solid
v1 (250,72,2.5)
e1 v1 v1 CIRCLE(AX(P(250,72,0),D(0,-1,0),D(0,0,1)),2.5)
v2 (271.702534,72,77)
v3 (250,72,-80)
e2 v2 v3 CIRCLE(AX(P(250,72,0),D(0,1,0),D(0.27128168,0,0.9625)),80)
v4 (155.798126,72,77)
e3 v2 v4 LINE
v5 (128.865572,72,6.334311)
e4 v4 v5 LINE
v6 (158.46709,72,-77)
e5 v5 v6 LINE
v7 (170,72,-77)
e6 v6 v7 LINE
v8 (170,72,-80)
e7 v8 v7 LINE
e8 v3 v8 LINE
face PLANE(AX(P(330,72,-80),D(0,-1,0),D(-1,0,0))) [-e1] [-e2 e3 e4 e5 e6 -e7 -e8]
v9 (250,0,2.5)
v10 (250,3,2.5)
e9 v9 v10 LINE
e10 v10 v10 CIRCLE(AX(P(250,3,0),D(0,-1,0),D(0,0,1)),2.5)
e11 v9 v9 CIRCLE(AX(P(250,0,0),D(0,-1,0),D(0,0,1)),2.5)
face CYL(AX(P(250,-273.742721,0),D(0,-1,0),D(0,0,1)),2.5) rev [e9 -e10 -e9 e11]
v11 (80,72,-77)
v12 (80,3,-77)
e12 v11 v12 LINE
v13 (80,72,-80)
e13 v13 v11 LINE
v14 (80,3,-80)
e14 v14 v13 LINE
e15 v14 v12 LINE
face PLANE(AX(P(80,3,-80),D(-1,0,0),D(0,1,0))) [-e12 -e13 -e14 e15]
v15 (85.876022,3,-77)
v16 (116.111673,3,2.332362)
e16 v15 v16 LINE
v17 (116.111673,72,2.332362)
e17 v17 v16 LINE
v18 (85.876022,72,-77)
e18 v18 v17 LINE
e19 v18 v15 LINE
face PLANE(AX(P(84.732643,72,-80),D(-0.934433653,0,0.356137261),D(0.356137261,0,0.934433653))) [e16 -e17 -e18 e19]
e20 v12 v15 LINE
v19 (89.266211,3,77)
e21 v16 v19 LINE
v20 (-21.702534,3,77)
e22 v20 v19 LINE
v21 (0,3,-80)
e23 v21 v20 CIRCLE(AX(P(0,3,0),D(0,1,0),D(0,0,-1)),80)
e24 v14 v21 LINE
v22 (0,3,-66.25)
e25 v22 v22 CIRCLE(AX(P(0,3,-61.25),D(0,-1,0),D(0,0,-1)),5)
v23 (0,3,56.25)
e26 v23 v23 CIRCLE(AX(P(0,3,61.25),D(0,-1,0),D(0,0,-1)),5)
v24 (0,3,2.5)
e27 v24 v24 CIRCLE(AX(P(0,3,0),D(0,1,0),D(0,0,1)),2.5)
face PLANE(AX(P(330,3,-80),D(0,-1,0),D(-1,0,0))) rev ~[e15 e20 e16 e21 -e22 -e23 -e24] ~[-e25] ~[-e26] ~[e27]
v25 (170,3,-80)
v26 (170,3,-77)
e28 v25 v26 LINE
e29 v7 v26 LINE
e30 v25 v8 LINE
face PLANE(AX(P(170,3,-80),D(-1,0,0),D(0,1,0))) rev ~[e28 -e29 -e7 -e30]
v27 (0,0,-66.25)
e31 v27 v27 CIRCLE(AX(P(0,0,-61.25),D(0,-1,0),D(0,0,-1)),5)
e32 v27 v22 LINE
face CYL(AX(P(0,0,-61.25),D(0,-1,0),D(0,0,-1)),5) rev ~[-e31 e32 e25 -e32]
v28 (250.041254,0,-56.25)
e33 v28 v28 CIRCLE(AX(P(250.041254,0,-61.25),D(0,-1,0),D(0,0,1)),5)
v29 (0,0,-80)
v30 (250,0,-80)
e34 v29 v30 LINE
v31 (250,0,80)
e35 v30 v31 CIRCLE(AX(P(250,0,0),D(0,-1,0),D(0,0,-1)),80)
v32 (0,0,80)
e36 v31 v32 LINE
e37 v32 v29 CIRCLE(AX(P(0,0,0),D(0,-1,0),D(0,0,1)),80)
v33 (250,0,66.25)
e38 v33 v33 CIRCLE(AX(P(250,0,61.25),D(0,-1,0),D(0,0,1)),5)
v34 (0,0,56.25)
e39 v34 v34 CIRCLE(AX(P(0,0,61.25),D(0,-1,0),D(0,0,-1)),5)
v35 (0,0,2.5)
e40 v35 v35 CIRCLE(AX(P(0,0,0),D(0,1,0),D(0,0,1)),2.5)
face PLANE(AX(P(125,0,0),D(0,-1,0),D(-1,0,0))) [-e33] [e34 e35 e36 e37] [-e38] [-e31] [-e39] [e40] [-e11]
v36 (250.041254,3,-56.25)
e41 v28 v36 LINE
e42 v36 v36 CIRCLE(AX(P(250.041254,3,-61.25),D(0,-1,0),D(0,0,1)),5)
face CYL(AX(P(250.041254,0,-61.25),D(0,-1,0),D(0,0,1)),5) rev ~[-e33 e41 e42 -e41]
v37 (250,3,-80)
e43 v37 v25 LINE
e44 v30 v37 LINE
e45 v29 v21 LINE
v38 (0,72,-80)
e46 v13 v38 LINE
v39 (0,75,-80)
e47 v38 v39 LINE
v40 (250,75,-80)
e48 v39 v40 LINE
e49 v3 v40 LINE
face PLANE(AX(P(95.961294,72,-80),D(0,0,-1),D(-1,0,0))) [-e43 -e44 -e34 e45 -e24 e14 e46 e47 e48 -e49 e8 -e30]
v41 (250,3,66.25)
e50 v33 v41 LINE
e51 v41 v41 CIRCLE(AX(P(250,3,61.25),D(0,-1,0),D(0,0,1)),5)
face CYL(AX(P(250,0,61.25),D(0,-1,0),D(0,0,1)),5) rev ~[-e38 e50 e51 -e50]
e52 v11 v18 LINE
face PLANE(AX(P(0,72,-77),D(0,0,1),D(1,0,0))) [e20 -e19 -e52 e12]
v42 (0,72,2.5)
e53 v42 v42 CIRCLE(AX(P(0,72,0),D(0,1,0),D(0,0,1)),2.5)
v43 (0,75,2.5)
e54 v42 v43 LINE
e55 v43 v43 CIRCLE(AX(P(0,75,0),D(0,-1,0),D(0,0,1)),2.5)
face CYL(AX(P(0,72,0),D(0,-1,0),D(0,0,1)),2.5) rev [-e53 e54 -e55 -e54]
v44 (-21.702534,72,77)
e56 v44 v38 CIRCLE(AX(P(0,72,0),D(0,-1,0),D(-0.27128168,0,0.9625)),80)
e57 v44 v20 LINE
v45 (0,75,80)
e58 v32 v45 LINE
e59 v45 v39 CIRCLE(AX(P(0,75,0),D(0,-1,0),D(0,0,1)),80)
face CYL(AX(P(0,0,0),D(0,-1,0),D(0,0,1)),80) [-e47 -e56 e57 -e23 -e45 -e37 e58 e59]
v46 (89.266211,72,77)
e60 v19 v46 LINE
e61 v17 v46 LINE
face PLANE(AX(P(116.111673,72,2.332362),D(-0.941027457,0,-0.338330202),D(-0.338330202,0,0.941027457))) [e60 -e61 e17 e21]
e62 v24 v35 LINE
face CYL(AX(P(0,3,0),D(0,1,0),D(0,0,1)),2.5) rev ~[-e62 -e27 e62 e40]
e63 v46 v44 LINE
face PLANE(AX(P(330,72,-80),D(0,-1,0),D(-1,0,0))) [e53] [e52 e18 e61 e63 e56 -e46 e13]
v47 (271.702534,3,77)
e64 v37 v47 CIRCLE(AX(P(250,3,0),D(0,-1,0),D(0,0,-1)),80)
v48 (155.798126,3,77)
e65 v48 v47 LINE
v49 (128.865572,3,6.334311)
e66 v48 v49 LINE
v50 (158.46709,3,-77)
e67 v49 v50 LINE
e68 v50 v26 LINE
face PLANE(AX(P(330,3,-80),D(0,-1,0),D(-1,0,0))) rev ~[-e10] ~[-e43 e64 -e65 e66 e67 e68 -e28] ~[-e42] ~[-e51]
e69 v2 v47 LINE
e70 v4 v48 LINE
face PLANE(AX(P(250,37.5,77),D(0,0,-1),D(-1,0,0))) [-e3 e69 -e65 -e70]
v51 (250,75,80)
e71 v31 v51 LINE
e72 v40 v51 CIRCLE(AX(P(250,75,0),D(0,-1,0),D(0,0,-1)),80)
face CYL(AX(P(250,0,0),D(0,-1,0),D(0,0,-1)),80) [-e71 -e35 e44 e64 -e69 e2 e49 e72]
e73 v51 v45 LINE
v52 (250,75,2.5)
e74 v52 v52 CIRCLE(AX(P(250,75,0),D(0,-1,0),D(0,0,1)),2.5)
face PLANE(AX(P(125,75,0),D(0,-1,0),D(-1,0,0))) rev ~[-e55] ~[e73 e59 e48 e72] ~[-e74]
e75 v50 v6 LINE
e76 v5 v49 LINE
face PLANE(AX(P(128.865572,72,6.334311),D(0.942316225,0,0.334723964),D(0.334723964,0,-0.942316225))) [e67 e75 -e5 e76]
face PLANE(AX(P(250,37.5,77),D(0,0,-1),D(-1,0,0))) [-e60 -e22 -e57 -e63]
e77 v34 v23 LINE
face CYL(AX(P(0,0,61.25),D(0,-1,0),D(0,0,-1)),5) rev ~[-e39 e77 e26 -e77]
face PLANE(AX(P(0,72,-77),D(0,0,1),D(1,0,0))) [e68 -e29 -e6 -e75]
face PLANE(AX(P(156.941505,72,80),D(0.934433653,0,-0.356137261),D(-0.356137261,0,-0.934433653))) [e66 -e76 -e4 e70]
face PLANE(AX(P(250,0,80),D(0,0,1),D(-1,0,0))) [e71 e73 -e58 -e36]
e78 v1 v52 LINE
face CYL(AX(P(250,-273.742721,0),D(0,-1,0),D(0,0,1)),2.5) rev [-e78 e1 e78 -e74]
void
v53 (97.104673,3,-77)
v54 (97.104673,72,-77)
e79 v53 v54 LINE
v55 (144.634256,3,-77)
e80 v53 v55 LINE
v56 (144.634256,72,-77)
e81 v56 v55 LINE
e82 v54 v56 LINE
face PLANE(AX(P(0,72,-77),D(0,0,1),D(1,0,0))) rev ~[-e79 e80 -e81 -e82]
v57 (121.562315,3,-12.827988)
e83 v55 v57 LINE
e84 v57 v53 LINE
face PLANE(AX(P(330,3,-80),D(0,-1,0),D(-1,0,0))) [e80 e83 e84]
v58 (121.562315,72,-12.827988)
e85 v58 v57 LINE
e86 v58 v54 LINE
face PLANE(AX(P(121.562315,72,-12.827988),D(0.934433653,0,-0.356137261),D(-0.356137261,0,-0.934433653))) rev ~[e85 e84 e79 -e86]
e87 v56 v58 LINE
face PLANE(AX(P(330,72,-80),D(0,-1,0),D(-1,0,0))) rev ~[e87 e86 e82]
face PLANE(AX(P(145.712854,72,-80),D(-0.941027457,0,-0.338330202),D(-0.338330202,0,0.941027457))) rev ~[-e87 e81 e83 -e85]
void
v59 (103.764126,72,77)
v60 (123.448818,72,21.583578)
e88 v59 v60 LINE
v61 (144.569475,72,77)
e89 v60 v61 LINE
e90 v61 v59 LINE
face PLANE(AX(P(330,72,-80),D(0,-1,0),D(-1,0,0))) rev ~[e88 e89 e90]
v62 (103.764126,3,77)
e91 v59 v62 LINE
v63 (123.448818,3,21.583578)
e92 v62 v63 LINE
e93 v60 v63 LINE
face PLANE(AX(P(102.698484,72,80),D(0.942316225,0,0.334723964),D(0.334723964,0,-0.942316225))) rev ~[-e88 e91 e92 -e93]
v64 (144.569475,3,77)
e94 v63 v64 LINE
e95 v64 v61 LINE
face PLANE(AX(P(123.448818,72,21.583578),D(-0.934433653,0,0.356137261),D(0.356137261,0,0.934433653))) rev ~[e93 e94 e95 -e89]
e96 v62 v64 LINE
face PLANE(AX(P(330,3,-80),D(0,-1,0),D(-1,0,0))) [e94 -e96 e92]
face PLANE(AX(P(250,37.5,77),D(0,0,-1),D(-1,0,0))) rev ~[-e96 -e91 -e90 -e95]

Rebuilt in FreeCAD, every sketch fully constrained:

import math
import FreeCAD as App
import Part
import Sketcher

V = App.Vector

doc = App.newDocument("Part")
body = doc.addObject("PartDesign::Body", "Body")

# Sketch on XZ plane
sketch1 = doc.addObject("Sketcher::SketchObject", "Sketch")
body.addObject(sketch1)
sketch1.AttachmentSupport = (doc.XZ_Plane, [""])
sketch1.MapMode = "FlatFace"
sketch1.addGeometry([
    Part.LineSegment(V(250, -80, 0), V(0, -80, 0)),
    Part.ArcOfCircle(Part.Circle(V(0, 0, 0), V(0, 0, 1), 80), math.radians(90), math.radians(270)),
    Part.LineSegment(V(0, 80, 0), V(250, 80, 0)),
    Part.ArcOfCircle(Part.Circle(V(250, 0, 0), V(0, 0, 1), 80), math.radians(-90), math.radians(90)),
], False)
sketch1.addConstraint([
    Sketcher.Constraint("Tangent", 0, 2, 1, 2),
    Sketcher.Constraint("Tangent", 1, 1, 2, 1),
    Sketcher.Constraint("Tangent", 2, 2, 3, 2),
    Sketcher.Constraint("Tangent", 3, 1, 0, 1),
    Sketcher.Constraint("Horizontal", 0),
    Sketcher.Constraint("Horizontal", 2),
    Sketcher.Constraint("Coincident", 1, 3, -1, 1),
    Sketcher.Constraint("Radius", 1, 80.0),
    Sketcher.Constraint("DistanceX", 0, 2, 0, 1, 250.0),
])
pad1 = doc.addObject("PartDesign::Pad", "Pad")
body.addObject(pad1)
pad1.Profile = sketch1
pad1.Length = 75
pad1.Reversed = True

# Sketch on XZ plane
sketch2 = doc.addObject("Sketcher::SketchObject", "Sketch001")
body.addObject(sketch2)
sketch2.AttachmentSupport = (doc.XZ_Plane, [""])
sketch2.MapMode = "FlatFace"
sketch2.AttachmentOffset = App.Placement(V(0, 0, -72), App.Rotation())
sketch2.addGeometry([
    Part.LineSegment(V(250, -77, 0), V(0, -77, 0)),
    Part.ArcOfCircle(Part.Circle(V(0, 0, 0), V(0, 0, 1), 77), math.radians(90), math.radians(270)),
    Part.LineSegment(V(0, 77, 0), V(250, 77, 0)),
    Part.ArcOfCircle(Part.Circle(V(250, 0, 0), V(0, 0, 1), 77), math.radians(-90), math.radians(90)),
], False)
sketch2.addConstraint([
    Sketcher.Constraint("Tangent", 0, 2, 1, 2),
    Sketcher.Constraint("Tangent", 1, 1, 2, 1),
    Sketcher.Constraint("Tangent", 2, 2, 3, 2),
    Sketcher.Constraint("Tangent", 3, 1, 0, 1),
    Sketcher.Constraint("Horizontal", 0),
    Sketcher.Constraint("Horizontal", 2),
    Sketcher.Constraint("Coincident", 1, 3, -1, 1),
    Sketcher.Constraint("Radius", 1, 77.0),
    Sketcher.Constraint("DistanceX", 0, 2, 0, 1, 250.0),
])
pocket1 = doc.addObject("PartDesign::Pocket", "Pocket")
body.addObject(pocket1)
pocket1.Profile = sketch2
pocket1.Length = 69
pocket1.Reversed = True

# Sketch on XY plane
sketch3 = doc.addObject("Sketcher::SketchObject", "Sketch002")
body.addObject(sketch3)
sketch3.AttachmentSupport = (doc.XY_Plane, [""])
sketch3.MapMode = "FlatFace"
sketch3.AttachmentOffset = App.Placement(V(0, 0, -80), App.Rotation())
sketch3.addGeometry([
    Part.LineSegment(V(80, 72, 0), V(80, 3, 0)),  # 0
    Part.LineSegment(V(80, 3, 0), V(-80, 3, 0)),  # 1
    Part.LineSegment(V(-80, 3, 0), V(-80, 72, 0)),  # 2
    Part.LineSegment(V(-80, 72, 0), V(80, 72, 0)),  # 3
    Part.LineSegment(V(330, 72, 0), V(330, 3, 0)),  # 4
    Part.LineSegment(V(330, 3, 0), V(170, 3, 0)),  # 5
    Part.LineSegment(V(170, 3, 0), V(170, 72, 0)),  # 6
    Part.LineSegment(V(170, 72, 0), V(330, 72, 0)),  # 7
], False)
sketch3.addConstraint([
    Sketcher.Constraint("Coincident", 0, 2, 1, 1),
    Sketcher.Constraint("Coincident", 1, 2, 2, 1),
    Sketcher.Constraint("Coincident", 2, 2, 3, 1),
    Sketcher.Constraint("Coincident", 3, 2, 0, 1),
    Sketcher.Constraint("Coincident", 4, 2, 5, 1),
    Sketcher.Constraint("Coincident", 5, 2, 6, 1),
    Sketcher.Constraint("Coincident", 6, 2, 7, 1),
    Sketcher.Constraint("Coincident", 7, 2, 4, 1),
    Sketcher.Constraint("Vertical", 0),
    Sketcher.Constraint("Horizontal", 1),
    Sketcher.Constraint("Vertical", 2),
    Sketcher.Constraint("Horizontal", 3),
    Sketcher.Constraint("Vertical", 4),
    Sketcher.Constraint("Horizontal", 5),
    Sketcher.Constraint("Vertical", 6),
    Sketcher.Constraint("Horizontal", 7),
    Sketcher.Constraint("Horizontal", 1, 2, 4, 2),
    Sketcher.Constraint("Horizontal", 3, 2, 6, 2),
    Sketcher.Constraint("Equal", 3, 5),
    Sketcher.Constraint("DistanceX", 1, 2, 1, 1, 160.0),
    Sketcher.Constraint("DistanceY", 0, 2, 0, 1, 69.0),
    Sketcher.Constraint("DistanceX", -1, 1, 0, 2, 80.0),
    Sketcher.Constraint("DistanceY", -1, 1, 0, 2, 3.0),
    Sketcher.Constraint("DistanceX", -1, 1, 4, 2, 330.0),
])
pocket2 = doc.addObject("PartDesign::Pocket", "Pocket001")
body.addObject(pocket2)
pocket2.Profile = sketch3
pocket2.Length = 157
pocket2.Reversed = True

# Sketch on XZ plane
sketch4 = doc.addObject("Sketcher::SketchObject", "Sketch003")
body.addObject(sketch4)
sketch4.AttachmentSupport = (doc.XZ_Plane, [""])
sketch4.MapMode = "FlatFace"
sketch4.AttachmentOffset = App.Placement(V(0, 0, -3), App.Rotation())
sketch4.addGeometry(Part.Circle(V(0, 0, 0), V(0, 0, 1), 2.5), False)
sketch4.addConstraint([
    Sketcher.Constraint("Coincident", 0, 3, -1, 1),
    Sketcher.Constraint("Diameter", 0, 5.0),
])
pocket3 = doc.addObject("PartDesign::Pocket", "Pocket002")
body.addObject(pocket3)
pocket3.Profile = sketch4
pocket3.Type = "ThroughAll"
pocket3.Reversed = True

# Sketch on XZ plane
sketch5 = doc.addObject("Sketcher::SketchObject", "Sketch004")
body.addObject(sketch5)
sketch5.AttachmentSupport = (doc.XZ_Plane, [""])
sketch5.MapMode = "FlatFace"
sketch5.AttachmentOffset = App.Placement(V(0, 0, -72), App.Rotation())
sketch5.addGeometry(Part.Circle(V(0, 0, 0), V(0, 0, 1), 2.5), False)
sketch5.addConstraint([
    Sketcher.Constraint("Coincident", 0, 3, -1, 1),
    Sketcher.Constraint("Diameter", 0, 5.0),
])
pocket4 = doc.addObject("PartDesign::Pocket", "Pocket003")
body.addObject(pocket4)
pocket4.Profile = sketch5
pocket4.Type = "UpToFirst"

# Sketch on XZ plane
sketch6 = doc.addObject("Sketcher::SketchObject", "Sketch005")
body.addObject(sketch6)
sketch6.AttachmentSupport = (doc.XZ_Plane, [""])
sketch6.MapMode = "FlatFace"
sketch6.addGeometry(Part.Circle(V(0, 61, 0), V(0, 0, 1), 5), False)
sketch6.addConstraint([
    Sketcher.Constraint("PointOnObject", 0, 3, -2),
    Sketcher.Constraint("Diameter", 0, 10.0),
    Sketcher.Constraint("DistanceY", -1, 1, 0, 3, 61.25),
])
pocket5 = doc.addObject("PartDesign::Pocket", "Pocket004")
body.addObject(pocket5)
pocket5.Profile = sketch6
pocket5.Type = "UpToFirst"

# Sketch on XZ plane
sketch7 = doc.addObject("Sketcher::SketchObject", "Sketch006")
body.addObject(sketch7)
sketch7.AttachmentSupport = (doc.XZ_Plane, [""])
sketch7.MapMode = "FlatFace"
sketch7.addGeometry(Part.Circle(V(0, -61, 0), V(0, 0, 1), 5), False)
sketch7.addConstraint([
    Sketcher.Constraint("PointOnObject", 0, 3, -2),
    Sketcher.Constraint("Diameter", 0, 10.0),
    Sketcher.Constraint("DistanceY", 0, 3, -1, 1, 61.25),
])
pocket6 = doc.addObject("PartDesign::Pocket", "Pocket005")
body.addObject(pocket6)
pocket6.Profile = sketch7
pocket6.Type = "UpToFirst"

# Sketch on XZ plane
sketch8 = doc.addObject("Sketcher::SketchObject", "Sketch007")
body.addObject(sketch8)
sketch8.AttachmentSupport = (doc.XZ_Plane, [""])
sketch8.MapMode = "FlatFace"
sketch8.AttachmentOffset = App.Placement(V(0, 0, -75), App.Rotation())
sketch8.addGeometry(Part.Circle(V(250, 0, 0), V(0, 0, 1), 2.5), False)
sketch8.addConstraint([
    Sketcher.Constraint("PointOnObject", 0, 3, -1),
    Sketcher.Constraint("Diameter", 0, 5.0),
    Sketcher.Constraint("DistanceX", -1, 1, 0, 3, 250.0),
])
pocket7 = doc.addObject("PartDesign::Pocket", "Pocket006")
body.addObject(pocket7)
pocket7.Profile = sketch8
pocket7.Type = "ThroughAll"
pocket7.Midplane = True

# Sketch on XZ plane
sketch9 = doc.addObject("Sketcher::SketchObject", "Sketch008")
body.addObject(sketch9)
sketch9.AttachmentSupport = (doc.XZ_Plane, [""])
sketch9.MapMode = "FlatFace"
sketch9.addGeometry(Part.Circle(V(250, 61, 0), V(0, 0, 1), 5), False)
sketch9.addConstraint([
    Sketcher.Constraint("Diameter", 0, 10.0),
    Sketcher.Constraint("DistanceX", -1, 1, 0, 3, 250.0),
    Sketcher.Constraint("DistanceY", -1, 1, 0, 3, 61.25),
])
pocket8 = doc.addObject("PartDesign::Pocket", "Pocket007")
body.addObject(pocket8)
pocket8.Profile = sketch9
pocket8.Type = "UpToFirst"

# Sketch on XZ plane
sketch10 = doc.addObject("Sketcher::SketchObject", "Sketch009")
body.addObject(sketch10)
sketch10.AttachmentSupport = (doc.XZ_Plane, [""])
sketch10.MapMode = "FlatFace"
sketch10.addGeometry(Part.Circle(V(250, -61, 0), V(0, 0, 1), 5), False)
sketch10.addConstraint([
    Sketcher.Constraint("Diameter", 0, 10.0),
    Sketcher.Constraint("DistanceY", 0, 3, -1, 1, 61.25),
    Sketcher.Constraint("DistanceX", -1, 1, 0, 3, 250.041254),
])
pocket9 = doc.addObject("PartDesign::Pocket", "Pocket008")
body.addObject(pocket9)
pocket9.Profile = sketch10
pocket9.Type = "UpToFirst"

# Sketch on XZ plane
sketch11 = doc.addObject("Sketcher::SketchObject", "Sketch010")
body.addObject(sketch11)
sketch11.AttachmentSupport = (doc.XZ_Plane, [""])
sketch11.MapMode = "FlatFace"
sketch11.addGeometry([
    Part.Circle(V(250, 61, 0), V(0, 0, 1), 5),
    Part.Circle(V(250, -61, 0), V(0, 0, 1), 5),
], False)
sketch11.addConstraint([
    Sketcher.Constraint("Equal", 0, 1),
    Sketcher.Constraint("Diameter", 0, 10.0),
    Sketcher.Constraint("DistanceX", -1, 1, 0, 3, 250.0),
    Sketcher.Constraint("DistanceY", 1, 3, 0, 3, 122.5),
    Sketcher.Constraint("DistanceY", -1, 1, 0, 3, 61.25),
    Sketcher.Constraint("DistanceX", -1, 1, 1, 3, 250.041254),
])
pocket10 = doc.addObject("PartDesign::Pocket", "Pocket009")
body.addObject(pocket10)
pocket10.Profile = sketch11
pocket10.Length = 348.742721
pocket10.Reversed = True

# Sketch on XZ plane
sketch12 = doc.addObject("Sketcher::SketchObject", "Sketch011")
body.addObject(sketch12)
sketch12.AttachmentSupport = (doc.XZ_Plane, [""])
sketch12.MapMode = "FlatFace"
sketch12.AttachmentOffset = App.Placement(V(0, 0, -72), App.Rotation())
sketch12.addGeometry([
    Part.LineSegment(V(85, -80, 0), V(116, 2, 0)),  # 0
    Part.LineSegment(V(116, 2, 0), V(88, 80, 0)),  # 1
    Part.LineSegment(V(88, 80, 0), V(103, 80, 0)),  # 2
    Part.LineSegment(V(103, 80, 0), V(123, 22, 0)),  # 3
    Part.LineSegment(V(123, 22, 0), V(146, 80, 0)),  # 4
    Part.LineSegment(V(146, 80, 0), V(157, 80, 0)),  # 5
    Part.LineSegment(V(157, 80, 0), V(129, 6, 0)),  # 6
    Part.LineSegment(V(129, 6, 0), V(160, -80, 0)),  # 7
    Part.LineSegment(V(160, -80, 0), V(146, -80, 0)),  # 8
    Part.LineSegment(V(146, -80, 0), V(122, -13, 0)),  # 9
    Part.LineSegment(V(122, -13, 0), V(96, -80, 0)),  # 10
    Part.LineSegment(V(96, -80, 0), V(85, -80, 0)),  # 11
], False)
sketch12.addConstraint([
    Sketcher.Constraint("Coincident", 0, 2, 1, 1),
    Sketcher.Constraint("Coincident", 1, 2, 2, 1),
    Sketcher.Constraint("Coincident", 2, 2, 3, 1),
    Sketcher.Constraint("Coincident", 3, 2, 4, 1),
    Sketcher.Constraint("Coincident", 4, 2, 5, 1),
    Sketcher.Constraint("Coincident", 5, 2, 6, 1),
    Sketcher.Constraint("Coincident", 6, 2, 7, 1),
    Sketcher.Constraint("Coincident", 7, 2, 8, 1),
    Sketcher.Constraint("Coincident", 8, 2, 9, 1),
    Sketcher.Constraint("Coincident", 9, 2, 10, 1),
    Sketcher.Constraint("Coincident", 10, 2, 11, 1),
    Sketcher.Constraint("Coincident", 11, 2, 0, 1),
    Sketcher.Constraint("Horizontal", 2),
    Sketcher.Constraint("Horizontal", 5),
    Sketcher.Constraint("Horizontal", 8),
    Sketcher.Constraint("Horizontal", 11),
    Sketcher.Constraint("Symmetric", 4, 2, 8, 2, -1),
    Sketcher.Constraint("Parallel", 0, 4),
    Sketcher.Constraint("Parallel", 4, 6),
    Sketcher.Constraint("Parallel", 3, 7),
    Sketcher.Constraint("Parallel", 1, 9),
    Sketcher.Constraint("Parallel", 6, 10),
    Sketcher.Constraint("Horizontal", 2, 2, 4, 2),
    Sketcher.Constraint("Horizontal", 8, 2, 10, 2),
    Sketcher.Constraint("Equal", 5, 11),
    Sketcher.Constraint("DistanceY", -1, 1, 1, 2, 80.0),
    Sketcher.Constraint("DistanceX", 2, 1, 2, 2, 14.510872),
    Sketcher.Constraint("DistanceX", 5, 1, 5, 2, 11.228651),
    Sketcher.Constraint("DistanceX", 0, 2, 6, 2, 12.753899),
    Sketcher.Constraint("DistanceY", 9, 2, 6, 2, 19.162299),
    Sketcher.Constraint("Distance", 0, 88.109371),
    Sketcher.Constraint("DistanceX", 8, 2, 8, 1, 13.819878),
    Sketcher.Constraint("DistanceY", -1, 1, 0, 2, 2.332362),
    Sketcher.Constraint("DistanceX", -1, 1, 3, 2, 123.448818),
    Sketcher.Constraint("DistanceX", -1, 1, 6, 2, 128.865572),
])
pad2 = doc.addObject("PartDesign::Pad", "Pad001")
body.addObject(pad2)
pad2.Profile = sketch12
pad2.Length = 69

doc.recompute()
